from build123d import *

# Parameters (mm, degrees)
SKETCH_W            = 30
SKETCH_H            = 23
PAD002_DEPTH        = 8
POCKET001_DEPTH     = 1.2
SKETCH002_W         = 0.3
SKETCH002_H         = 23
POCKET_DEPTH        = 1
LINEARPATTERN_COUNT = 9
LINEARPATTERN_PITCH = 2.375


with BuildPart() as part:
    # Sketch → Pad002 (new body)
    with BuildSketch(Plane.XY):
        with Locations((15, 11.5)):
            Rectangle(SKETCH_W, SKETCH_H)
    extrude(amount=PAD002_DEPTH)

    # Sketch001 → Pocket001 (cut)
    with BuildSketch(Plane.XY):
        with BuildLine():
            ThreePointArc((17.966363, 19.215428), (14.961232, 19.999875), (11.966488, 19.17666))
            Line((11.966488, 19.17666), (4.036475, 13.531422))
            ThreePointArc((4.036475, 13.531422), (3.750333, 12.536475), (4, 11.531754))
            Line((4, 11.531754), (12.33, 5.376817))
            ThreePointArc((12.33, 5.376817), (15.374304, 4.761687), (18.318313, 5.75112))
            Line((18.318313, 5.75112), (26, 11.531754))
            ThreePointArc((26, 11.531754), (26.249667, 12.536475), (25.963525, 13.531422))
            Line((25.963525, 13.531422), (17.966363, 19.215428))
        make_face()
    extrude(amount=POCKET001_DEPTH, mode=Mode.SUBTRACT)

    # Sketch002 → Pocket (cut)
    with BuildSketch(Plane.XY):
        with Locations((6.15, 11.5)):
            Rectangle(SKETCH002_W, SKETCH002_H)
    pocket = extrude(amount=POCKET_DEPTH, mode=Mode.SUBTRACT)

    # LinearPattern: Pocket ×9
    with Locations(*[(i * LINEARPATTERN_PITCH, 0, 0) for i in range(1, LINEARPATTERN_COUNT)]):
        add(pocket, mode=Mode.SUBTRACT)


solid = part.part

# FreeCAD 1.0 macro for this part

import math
import FreeCAD as App
import Part
import Sketcher

V = App.Vector


def add_polygon(sketch, points):
    """Adds a closed chain of lines whose ends are joined by coincident constraints."""
    first, n = sketch.GeometryCount, len(points)
    for a, b in zip(points, points[1:] + points[:1]):
        sketch.addGeometry(Part.LineSegment(App.Vector(*a, 0), App.Vector(*b, 0)), False)
    for i in range(n):
        sketch.addConstraint(Sketcher.Constraint("Coincident", first + i, 2, first + (i + 1) % n, 1))

doc = App.newDocument("Part")
body = doc.addObject("PartDesign::Body", "Body")

sketch1 = body.newObject("Sketcher::SketchObject", "Sketch")
sketch1.AttachmentSupport = (doc.getObject("XY_Plane"), [""])
sketch1.MapMode = "FlatFace"
add_polygon(sketch1, [(0, 23), (0, 0), (30, 0), (30, 23)])
sketch1.addConstraint(Sketcher.Constraint("Vertical", 0))
sketch1.addConstraint(Sketcher.Constraint("Horizontal", 1))
sketch1.addConstraint(Sketcher.Constraint("Vertical", 2))
sketch1.addConstraint(Sketcher.Constraint("Horizontal", 3))
sketch1.addConstraint(Sketcher.Constraint("Coincident", 0, 2, -1, 1))
sketch1.addConstraint(Sketcher.Constraint("DistanceX", 1, 1, 1, 2, 30.0))
sketch1.addConstraint(Sketcher.Constraint("DistanceY", 0, 2, 0, 1, 23.0))
pad1 = body.newObject("PartDesign::Pad", "Pad")
pad1.Profile = sketch1
pad1.Length = 8

sketch2 = body.newObject("Sketcher::SketchObject", "Sketch001")
sketch2.AttachmentSupport = (doc.getObject("XY_Plane"), [""])
sketch2.MapMode = "FlatFace"
sketch2.addGeometry(Part.ArcOfCircle(Part.Circle(V(15, 14, 0), V(0, 0, 1), 6), math.radians(60), math.radians(120)), False)
sketch2.addGeometry(Part.LineSegment(V(12, 19.2, 0), V(4, 13.5, 0)), False)
sketch2.addGeometry(Part.ArcOfCircle(Part.Circle(V(5.8, 12.5, 0), V(0, 0, 1), 2), math.radians(149), math.radians(209)), False)
sketch2.addGeometry(Part.LineSegment(V(4, 11.5, 0), V(12.3, 5.4, 0)), False)
sketch2.addGeometry(Part.ArcOfCircle(Part.Circle(V(15, 10.8, 0), V(0, 0, 1), 6), math.radians(-116), math.radians(-56)), False)
sketch2.addGeometry(Part.LineSegment(V(18.3, 5.8, 0), V(26, 11.5, 0)), False)
sketch2.addGeometry(Part.ArcOfCircle(Part.Circle(V(24.2, 12.5, 0), V(0, 0, 1), 2), math.radians(-29), math.radians(31)), False)
sketch2.addGeometry(Part.LineSegment(V(26, 13.5, 0), V(18, 19.2, 0)), False)
sketch2.addConstraint(Sketcher.Constraint("Coincident", 0, 2, 1, 1))
sketch2.addConstraint(Sketcher.Constraint("Coincident", 1, 2, 2, 1))
sketch2.addConstraint(Sketcher.Constraint("Coincident", 2, 2, 3, 1))
sketch2.addConstraint(Sketcher.Constraint("Coincident", 3, 2, 4, 1))
sketch2.addConstraint(Sketcher.Constraint("Coincident", 4, 2, 5, 1))
sketch2.addConstraint(Sketcher.Constraint("Coincident", 5, 2, 6, 1))
sketch2.addConstraint(Sketcher.Constraint("Coincident", 6, 2, 7, 1))
sketch2.addConstraint(Sketcher.Constraint("Coincident", 7, 2, 0, 1))
sketch2.addConstraint(Sketcher.Constraint("Equal", 2, 6))
sketch2.addConstraint(Sketcher.Constraint("Horizontal", 2, 3, 6, 3))
sketch2.addConstraint(Sketcher.Constraint("Horizontal", 2, 2, 5, 2))
sketch2.addConstraint(Sketcher.Constraint("Horizontal", 1, 2, 6, 2))
sketch2.addConstraint(Sketcher.Constraint("Vertical", 0, 3, 4, 3))
sketch2.addConstraint(Sketcher.Constraint("Radius", 0, 5.999999))
sketch2.addConstraint(Sketcher.Constraint("Radius", 2, 2.000002))
sketch2.addConstraint(Sketcher.Constraint("Radius", 4, 6.000001))
sketch2.addConstraint(Sketcher.Constraint("DistanceX", -1, 1, 0, 3, 15.0))
sketch2.addConstraint(Sketcher.Constraint("DistanceY", -1, 1, 0, 3, 14.000001))
sketch2.addConstraint(Sketcher.Constraint("DistanceX", -1, 1, 2, 2, 4.0))
sketch2.addConstraint(Sketcher.Constraint("DistanceX", -1, 1, 5, 2, 26.0))
sketch2.addConstraint(Sketcher.Constraint("DistanceY", -1, 1, 2, 3, 12.5))
sketch2.addConstraint(Sketcher.Constraint("DistanceY", -1, 1, 4, 3, 10.750002))
sketch2.addConstraint(Sketcher.Constraint("DistanceX", -1, 1, 3, 2, 12.33))
sketch2.addConstraint(Sketcher.Constraint("DistanceX", 2, 3, 4, 3, 9.249998))
sketch2.addConstraint(Sketcher.Constraint("DistanceY", 4, 2, 6, 2, 7.780302))
sketch2.addConstraint(Sketcher.Constraint("DistanceX", -1, 1, 0, 2, 11.966488))
sketch2.addConstraint(Sketcher.Constraint("DistanceY", -1, 1, 1, 2, 13.531422))
sketch2.addConstraint(Sketcher.Constraint("DistanceY", 0, 2, 7, 2, 0.038768))
pocket1 = body.newObject("PartDesign::Pocket", "Pocket")
pocket1.Profile = sketch2
pocket1.Length = 1.2
pocket1.Reversed = True

sketch3 = body.newObject("Sketcher::SketchObject", "Sketch002")
sketch3.AttachmentSupport = (doc.getObject("XY_Plane"), [""])
sketch3.MapMode = "FlatFace"
add_polygon(sketch3, [(6, 23), (6, 0), (6.3, 0), (6.3, 23)])
sketch3.addConstraint(Sketcher.Constraint("Vertical", 0))
sketch3.addConstraint(Sketcher.Constraint("Horizontal", 1))
sketch3.addConstraint(Sketcher.Constraint("Vertical", 2))
sketch3.addConstraint(Sketcher.Constraint("Horizontal", 3))
sketch3.addConstraint(Sketcher.Constraint("PointOnObject", 0, 2, -1))
sketch3.addConstraint(Sketcher.Constraint("DistanceY", 0, 2, 0, 1, 23.0))
sketch3.addConstraint(Sketcher.Constraint("DistanceX", 1, 1, 1, 2, 0.3))
sketch3.addConstraint(Sketcher.Constraint("DistanceX", -1, 1, 0, 2, 6.0))
pocket2 = body.newObject("PartDesign::Pocket", "Pocket001")
pocket2.Profile = sketch3
pocket2.Length = 1
pocket2.Reversed = True
doc.recompute()

linearpattern = body.newObject("PartDesign::LinearPattern", "LinearPattern")
linearpattern.Originals = [pocket2]
linearpattern.Direction = (doc.getObject("X_Axis"), [""])
linearpattern.Mode = "offset"
linearpattern.Offset = 2.375
linearpattern.Occurrences = 9
body.Tip = linearpattern

doc.recompute()
